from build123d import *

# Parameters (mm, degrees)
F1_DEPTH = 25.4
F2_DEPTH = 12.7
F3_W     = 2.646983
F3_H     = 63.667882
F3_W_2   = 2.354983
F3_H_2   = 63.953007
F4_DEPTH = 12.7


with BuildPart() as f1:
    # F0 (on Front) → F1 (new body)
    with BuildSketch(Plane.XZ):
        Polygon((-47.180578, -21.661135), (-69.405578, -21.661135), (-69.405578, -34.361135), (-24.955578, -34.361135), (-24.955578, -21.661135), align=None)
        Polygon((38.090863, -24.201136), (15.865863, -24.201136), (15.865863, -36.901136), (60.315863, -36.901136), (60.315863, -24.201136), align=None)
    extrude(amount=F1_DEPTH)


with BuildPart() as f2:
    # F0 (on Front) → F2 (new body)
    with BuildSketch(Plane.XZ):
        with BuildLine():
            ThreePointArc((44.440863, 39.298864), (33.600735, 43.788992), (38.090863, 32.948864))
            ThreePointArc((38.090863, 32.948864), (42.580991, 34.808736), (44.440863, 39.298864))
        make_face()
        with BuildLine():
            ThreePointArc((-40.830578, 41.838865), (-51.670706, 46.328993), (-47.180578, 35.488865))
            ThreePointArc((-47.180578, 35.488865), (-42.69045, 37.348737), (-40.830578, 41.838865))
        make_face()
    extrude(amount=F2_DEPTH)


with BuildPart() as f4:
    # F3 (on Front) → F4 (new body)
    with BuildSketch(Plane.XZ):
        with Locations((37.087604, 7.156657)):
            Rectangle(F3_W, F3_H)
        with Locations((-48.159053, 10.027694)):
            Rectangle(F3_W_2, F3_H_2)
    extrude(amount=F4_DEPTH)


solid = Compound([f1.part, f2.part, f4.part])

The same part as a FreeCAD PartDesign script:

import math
import FreeCAD as App
import Part
import Sketcher

V = App.Vector
Q = App.Units.Quantity

doc = App.newDocument("Part")
body = doc.addObject("PartDesign::Body", "Body")
body.AllowCompound = True

sketch1 = body.newObject("Sketcher::SketchObject", "Sketch")
sketch1.AttachmentSupport = (doc.getObject("XZ_Plane"), [""])
sketch1.MapMode = "FlatFace"
sketch1.addGeometry([
    Part.LineSegment(V(-69, -22, 0), V(-69, -34, 0)),
    Part.LineSegment(V(-69, -34, 0), V(-25, -34, 0)),
    Part.LineSegment(V(-25, -34, 0), V(-25, -22, 0)),
    Part.LineSegment(V(-25, -22, 0), V(-69, -22, 0)),
    Part.LineSegment(V(16, -24, 0), V(16, -37, 0)),
    Part.LineSegment(V(16, -37, 0), V(60, -37, 0)),
    Part.LineSegment(V(60, -37, 0), V(60, -24, 0)),
    Part.LineSegment(V(60, -24, 0), V(16, -24, 0)),
], False)
sketch1.addConstraint([
    Sketcher.Constraint("Coincident", 0, 2, 1, 1),
    Sketcher.Constraint("Coincident", 1, 2, 2, 1),
    Sketcher.Constraint("Coincident", 2, 2, 3, 1),
    Sketcher.Constraint("Coincident", 3, 2, 0, 1),
    Sketcher.Constraint("Coincident", 4, 2, 5, 1),
    Sketcher.Constraint("Coincident", 5, 2, 6, 1),
    Sketcher.Constraint("Coincident", 6, 2, 7, 1),
    Sketcher.Constraint("Coincident", 7, 2, 4, 1),
    Sketcher.Constraint("Vertical", 0),
    Sketcher.Constraint("Horizontal", 1),
    Sketcher.Constraint("Vertical", 2),
    Sketcher.Constraint("Horizontal", 3),
    Sketcher.Constraint("Vertical", 4),
    Sketcher.Constraint("Horizontal", 5),
    Sketcher.Constraint("Vertical", 6),
    Sketcher.Constraint("Horizontal", 7),
    Sketcher.Constraint("Equal", 3, 5),
    Sketcher.Constraint("Equal", 2, 4),
    Sketcher.Constraint("DistanceY", 0, 2, 0, 1, Q("0.5 in")),
    Sketcher.Constraint("DistanceX", 1, 1, 1, 2, Q("1.75 in")),
    Sketcher.Constraint("DistanceY", 4, 2, 1, 2, Q("0.1 in")),
    Sketcher.Constraint("DistanceX", 0, 2, -1, 1, Q("69.405578 mm")),
    Sketcher.Constraint("DistanceX", 1, 2, 4, 2, Q("40.821441 mm")),
    Sketcher.Constraint("DistanceY", 0, 2, -1, 1, Q("34.361135 mm")),
])
pad1 = body.newObject("PartDesign::Pad", "Pad")
pad1.Profile = sketch1
pad1.Length = Q("1 in")
body2 = doc.addObject("PartDesign::Body", "Body001")
body2.AllowCompound = True

sketch2 = body2.newObject("Sketcher::SketchObject", "Sketch001")
sketch2.AttachmentSupport = (doc.getObject("XZ_Plane001"), [""])
sketch2.MapMode = "FlatFace"
sketch2.addGeometry([
    Part.ArcOfCircle(Part.Circle(V(38, 39, 0), V(0, 0, 1), 6), math.radians(0), math.radians(270)),
    Part.ArcOfCircle(Part.Circle(V(38, 39, 0), V(0, 0, 1), 6), math.radians(-90), math.radians(0)),
    Part.ArcOfCircle(Part.Circle(V(-47, 42, 0), V(0, 0, 1), 6), math.radians(0), math.radians(270)),
    Part.ArcOfCircle(Part.Circle(V(-47, 42, 0), V(0, 0, 1), 6), math.radians(-90), math.radians(0)),
], False)
sketch2.addConstraint([
    Sketcher.Constraint("Tangent", 0, 1, 1, 2),
    Sketcher.Constraint("Coincident", 1, 1, 0, 2),
    Sketcher.Constraint("Tangent", 2, 1, 3, 2),
    Sketcher.Constraint("Coincident", 3, 1, 2, 2),
    Sketcher.Constraint("Equal", 1, 2),
    Sketcher.Constraint("Horizontal", 1, 3, 0, 1),
    Sketcher.Constraint("Horizontal", 3, 3, 2, 1),
    Sketcher.Constraint("Vertical", 0, 3, 1, 1),
    Sketcher.Constraint("Vertical", 2, 3, 3, 1),
    Sketcher.Constraint("Radius", 0, Q("0.25 in")),
    Sketcher.Constraint("DistanceY", 1, 3, 2, 3, Q("0.1 in")),
    Sketcher.Constraint("DistanceX", 3, 3, -1, 1, Q("47.180578 mm")),
    Sketcher.Constraint("DistanceX", 2, 3, 1, 3, Q("85.271441 mm")),
    Sketcher.Constraint("DistanceY", -1, 1, 0, 3, Q("39.298864 mm")),
])
pad2 = body2.newObject("PartDesign::Pad", "Pad001")
pad2.Profile = sketch2
pad2.Length = Q("0.5 in")
body3 = doc.addObject("PartDesign::Body", "Body002")
body3.AllowCompound = True

sketch3 = body3.newObject("Sketcher::SketchObject", "Sketch002")
sketch3.AttachmentSupport = (doc.getObject("XZ_Plane002"), [""])
sketch3.MapMode = "FlatFace"
sketch3.addGeometry([
    Part.LineSegment(V(35.8, 39, 0), V(35.8, -24.7, 0)),
    Part.LineSegment(V(35.8, -24.7, 0), V(38.4, -24.7, 0)),
    Part.LineSegment(V(38.4, -24.7, 0), V(38.4, 39, 0)),
    Part.LineSegment(V(38.4, 39, 0), V(35.8, 39, 0)),
    Part.LineSegment(V(-49.3, 42, 0), V(-49.3, -21.9, 0)),
    Part.LineSegment(V(-49.3, -21.9, 0), V(-47, -21.9, 0)),
    Part.LineSegment(V(-47, -21.9, 0), V(-47, 42, 0)),
    Part.LineSegment(V(-47, 42, 0), V(-49.3, 42, 0)),
], False)
sketch3.addConstraint([
    Sketcher.Constraint("Coincident", 0, 2, 1, 1),
    Sketcher.Constraint("Coincident", 1, 2, 2, 1),
    Sketcher.Constraint("Coincident", 2, 2, 3, 1),
    Sketcher.Constraint("Coincident", 3, 2, 0, 1),
    Sketcher.Constraint("Coincident", 4, 2, 5, 1),
    Sketcher.Constraint("Coincident", 5, 2, 6, 1),
    Sketcher.Constraint("Coincident", 6, 2, 7, 1),
    Sketcher.Constraint("Coincident", 7, 2, 4, 1),
    Sketcher.Constraint("Vertical", 0),
    Sketcher.Constraint("Horizontal", 1),
    Sketcher.Constraint("Vertical", 2),
    Sketcher.Constraint("Horizontal", 3),
    Sketcher.Constraint("Vertical", 4),
    Sketcher.Constraint("Horizontal", 5),
    Sketcher.Constraint("Vertical", 6),
    Sketcher.Constraint("Horizontal", 7),
    Sketcher.Constraint("DistanceY", 3, 2, 6, 2, Q("3.013599 mm")),
    Sketcher.Constraint("DistanceX", 1, 1, 1, 2, Q("2.646983 mm")),
    Sketcher.Constraint("DistanceX", 5, 1, 5, 2, Q("2.354983 mm")),
    Sketcher.Constraint("DistanceY", 0, 2, 0, 1, Q("63.667882 mm")),
    Sketcher.Constraint("DistanceY", 4, 2, 4, 1, Q("63.953007 mm")),
    Sketcher.Constraint("DistanceY", 4, 2, -1, 1, Q("21.948809 mm")),
    Sketcher.Constraint("DistanceX", 5, 2, -1, 1, Q("46.981561 mm")),
    Sketcher.Constraint("DistanceX", 4, 2, 1, 2, Q("87.74764 mm")),
])
pad3 = body3.newObject("PartDesign::Pad", "Pad002")
pad3.Profile = sketch3
pad3.Length = Q("0.5 in")

doc.recompute()
